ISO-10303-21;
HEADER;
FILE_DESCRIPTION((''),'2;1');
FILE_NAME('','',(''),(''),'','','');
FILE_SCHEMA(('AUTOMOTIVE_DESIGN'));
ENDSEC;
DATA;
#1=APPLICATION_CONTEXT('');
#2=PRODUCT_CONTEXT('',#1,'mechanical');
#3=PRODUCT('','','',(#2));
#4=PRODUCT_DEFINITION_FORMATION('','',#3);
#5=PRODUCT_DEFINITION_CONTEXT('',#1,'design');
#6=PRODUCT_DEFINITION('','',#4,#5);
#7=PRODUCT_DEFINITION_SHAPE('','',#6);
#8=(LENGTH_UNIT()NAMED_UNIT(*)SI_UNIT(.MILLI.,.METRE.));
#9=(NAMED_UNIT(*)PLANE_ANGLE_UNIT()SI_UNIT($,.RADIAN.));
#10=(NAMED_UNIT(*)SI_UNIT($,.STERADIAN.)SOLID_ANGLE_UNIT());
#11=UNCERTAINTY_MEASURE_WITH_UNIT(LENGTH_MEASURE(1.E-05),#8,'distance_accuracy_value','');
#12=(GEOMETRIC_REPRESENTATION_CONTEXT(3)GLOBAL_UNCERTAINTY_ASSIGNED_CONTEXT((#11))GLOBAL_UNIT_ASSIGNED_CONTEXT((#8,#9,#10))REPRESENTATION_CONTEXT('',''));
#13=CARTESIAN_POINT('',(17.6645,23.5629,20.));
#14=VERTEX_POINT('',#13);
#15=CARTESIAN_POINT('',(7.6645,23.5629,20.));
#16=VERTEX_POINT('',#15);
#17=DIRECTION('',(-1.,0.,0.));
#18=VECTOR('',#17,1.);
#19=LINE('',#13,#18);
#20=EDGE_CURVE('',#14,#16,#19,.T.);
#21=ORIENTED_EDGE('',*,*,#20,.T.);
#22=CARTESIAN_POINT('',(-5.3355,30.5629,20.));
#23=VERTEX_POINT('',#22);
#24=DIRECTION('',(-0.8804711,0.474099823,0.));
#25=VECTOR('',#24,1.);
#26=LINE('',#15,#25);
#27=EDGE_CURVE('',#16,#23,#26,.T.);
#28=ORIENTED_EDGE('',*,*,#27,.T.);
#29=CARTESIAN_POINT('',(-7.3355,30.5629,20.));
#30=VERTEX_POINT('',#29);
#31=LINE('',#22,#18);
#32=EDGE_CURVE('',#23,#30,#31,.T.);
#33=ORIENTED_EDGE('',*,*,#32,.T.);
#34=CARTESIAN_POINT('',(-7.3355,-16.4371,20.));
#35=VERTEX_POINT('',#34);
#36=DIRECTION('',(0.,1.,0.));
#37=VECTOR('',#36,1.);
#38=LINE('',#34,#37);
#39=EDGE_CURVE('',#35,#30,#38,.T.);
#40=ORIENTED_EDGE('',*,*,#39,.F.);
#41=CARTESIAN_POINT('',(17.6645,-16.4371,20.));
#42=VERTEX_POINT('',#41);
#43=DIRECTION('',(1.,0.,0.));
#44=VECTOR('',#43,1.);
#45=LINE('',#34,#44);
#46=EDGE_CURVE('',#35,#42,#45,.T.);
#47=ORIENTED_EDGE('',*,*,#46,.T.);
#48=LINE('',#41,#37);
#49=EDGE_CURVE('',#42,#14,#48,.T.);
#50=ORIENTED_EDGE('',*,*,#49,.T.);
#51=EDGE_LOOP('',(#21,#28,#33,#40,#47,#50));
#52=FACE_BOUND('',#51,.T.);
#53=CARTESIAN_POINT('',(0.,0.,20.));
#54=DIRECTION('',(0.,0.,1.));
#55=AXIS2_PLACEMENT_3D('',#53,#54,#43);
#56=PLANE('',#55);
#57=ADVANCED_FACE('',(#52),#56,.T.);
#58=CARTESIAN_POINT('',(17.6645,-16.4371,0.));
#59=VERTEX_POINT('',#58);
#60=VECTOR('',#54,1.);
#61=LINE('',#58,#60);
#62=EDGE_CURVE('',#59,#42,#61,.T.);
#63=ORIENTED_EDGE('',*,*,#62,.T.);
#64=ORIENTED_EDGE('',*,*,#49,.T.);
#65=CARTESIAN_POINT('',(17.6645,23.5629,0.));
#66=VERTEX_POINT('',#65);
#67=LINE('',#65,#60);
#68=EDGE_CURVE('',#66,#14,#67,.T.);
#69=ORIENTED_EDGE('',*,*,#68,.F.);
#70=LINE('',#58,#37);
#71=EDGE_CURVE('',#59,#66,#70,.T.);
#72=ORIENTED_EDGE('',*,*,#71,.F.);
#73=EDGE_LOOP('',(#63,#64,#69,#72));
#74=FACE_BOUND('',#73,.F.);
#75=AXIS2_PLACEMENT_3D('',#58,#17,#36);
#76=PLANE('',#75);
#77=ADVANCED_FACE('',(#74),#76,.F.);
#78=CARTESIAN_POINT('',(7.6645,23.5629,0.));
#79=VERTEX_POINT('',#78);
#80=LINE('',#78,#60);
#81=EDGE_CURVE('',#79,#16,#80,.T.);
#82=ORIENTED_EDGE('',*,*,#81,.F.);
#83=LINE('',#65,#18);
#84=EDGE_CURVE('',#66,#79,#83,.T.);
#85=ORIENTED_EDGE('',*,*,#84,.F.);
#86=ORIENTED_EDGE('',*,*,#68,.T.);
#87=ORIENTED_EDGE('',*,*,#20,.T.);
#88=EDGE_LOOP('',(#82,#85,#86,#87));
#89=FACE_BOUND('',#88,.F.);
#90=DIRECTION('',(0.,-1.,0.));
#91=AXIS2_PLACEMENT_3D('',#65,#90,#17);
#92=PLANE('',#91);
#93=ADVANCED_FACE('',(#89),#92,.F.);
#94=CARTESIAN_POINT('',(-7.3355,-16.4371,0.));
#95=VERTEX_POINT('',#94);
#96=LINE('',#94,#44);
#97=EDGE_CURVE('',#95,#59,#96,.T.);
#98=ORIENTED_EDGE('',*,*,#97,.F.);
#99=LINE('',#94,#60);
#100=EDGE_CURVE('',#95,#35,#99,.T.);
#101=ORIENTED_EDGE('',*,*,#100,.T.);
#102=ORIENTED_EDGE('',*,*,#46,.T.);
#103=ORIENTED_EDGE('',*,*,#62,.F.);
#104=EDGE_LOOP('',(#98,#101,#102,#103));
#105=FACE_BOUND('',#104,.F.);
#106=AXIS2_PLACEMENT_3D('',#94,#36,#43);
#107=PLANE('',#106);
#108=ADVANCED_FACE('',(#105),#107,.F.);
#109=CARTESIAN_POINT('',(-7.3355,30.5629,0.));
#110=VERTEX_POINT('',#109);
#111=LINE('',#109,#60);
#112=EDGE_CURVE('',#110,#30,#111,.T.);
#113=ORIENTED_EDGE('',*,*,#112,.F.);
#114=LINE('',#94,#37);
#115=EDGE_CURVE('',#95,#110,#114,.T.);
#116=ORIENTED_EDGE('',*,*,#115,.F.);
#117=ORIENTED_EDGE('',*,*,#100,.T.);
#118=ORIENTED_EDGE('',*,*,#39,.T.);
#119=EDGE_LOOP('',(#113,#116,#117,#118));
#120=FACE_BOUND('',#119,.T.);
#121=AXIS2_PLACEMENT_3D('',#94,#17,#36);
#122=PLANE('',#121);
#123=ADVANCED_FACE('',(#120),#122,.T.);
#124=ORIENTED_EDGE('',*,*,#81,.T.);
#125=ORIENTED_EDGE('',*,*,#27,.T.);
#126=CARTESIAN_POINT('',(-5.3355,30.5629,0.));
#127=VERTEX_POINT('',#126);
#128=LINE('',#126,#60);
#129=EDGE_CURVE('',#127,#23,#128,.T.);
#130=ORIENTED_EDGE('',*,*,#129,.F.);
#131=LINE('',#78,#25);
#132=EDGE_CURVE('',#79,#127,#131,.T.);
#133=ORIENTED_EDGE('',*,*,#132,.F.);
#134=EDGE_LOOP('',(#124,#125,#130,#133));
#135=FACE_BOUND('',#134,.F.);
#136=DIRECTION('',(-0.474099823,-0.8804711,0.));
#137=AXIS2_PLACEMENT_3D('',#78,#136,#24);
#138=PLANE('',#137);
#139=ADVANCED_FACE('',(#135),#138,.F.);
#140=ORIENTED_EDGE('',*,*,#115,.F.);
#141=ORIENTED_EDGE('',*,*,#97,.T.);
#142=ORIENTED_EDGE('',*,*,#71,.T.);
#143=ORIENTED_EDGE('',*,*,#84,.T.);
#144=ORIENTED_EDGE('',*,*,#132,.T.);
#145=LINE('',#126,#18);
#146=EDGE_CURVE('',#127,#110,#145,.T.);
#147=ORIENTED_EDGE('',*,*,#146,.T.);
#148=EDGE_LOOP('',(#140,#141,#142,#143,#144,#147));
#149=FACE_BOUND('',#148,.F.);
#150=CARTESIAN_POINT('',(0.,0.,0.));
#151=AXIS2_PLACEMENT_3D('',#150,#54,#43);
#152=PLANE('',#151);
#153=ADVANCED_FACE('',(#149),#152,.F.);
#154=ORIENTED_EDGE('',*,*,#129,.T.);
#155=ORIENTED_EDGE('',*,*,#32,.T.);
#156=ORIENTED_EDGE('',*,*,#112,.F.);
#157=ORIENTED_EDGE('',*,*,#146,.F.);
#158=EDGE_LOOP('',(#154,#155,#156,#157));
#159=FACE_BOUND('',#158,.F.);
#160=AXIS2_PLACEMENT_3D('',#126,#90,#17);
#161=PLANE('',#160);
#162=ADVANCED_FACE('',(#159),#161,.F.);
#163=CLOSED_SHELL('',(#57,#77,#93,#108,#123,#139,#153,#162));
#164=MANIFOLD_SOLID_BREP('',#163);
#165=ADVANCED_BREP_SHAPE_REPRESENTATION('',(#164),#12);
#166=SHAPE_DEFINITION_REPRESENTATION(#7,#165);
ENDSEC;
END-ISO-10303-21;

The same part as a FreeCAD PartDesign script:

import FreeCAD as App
import Part
import Sketcher

doc = App.newDocument("Part")
body = doc.addObject("PartDesign::Body", "Body")

# Sketch on XY plane
sketch1 = body.newObject("Sketcher::SketchObject", "Sketch")
sketch1.AttachmentSupport = (doc.getObject("XY_Plane"), [""])
sketch1.MapMode = "FlatFace"
sketch1.addGeometry([
    Part.LineSegment(App.Vector(-7.3, 30.6, 0), App.Vector(-7.3, -16.4, 0)),  # 0
    Part.LineSegment(App.Vector(-7.3, -16.4, 0), App.Vector(17.7, -16.4, 0)),  # 1
    Part.LineSegment(App.Vector(17.7, -16.4, 0), App.Vector(17.7, 23.6, 0)),  # 2
    Part.LineSegment(App.Vector(17.7, 23.6, 0), App.Vector(7.7, 23.6, 0)),  # 3
    Part.LineSegment(App.Vector(7.7, 23.6, 0), App.Vector(-5.3, 30.6, 0)),  # 4
    Part.LineSegment(App.Vector(-5.3, 30.6, 0), App.Vector(-7.3, 30.6, 0)),  # 5
], False)
sketch1.addConstraint([
    Sketcher.Constraint("Coincident", 0, 2, 1, 1),
    Sketcher.Constraint("Coincident", 1, 2, 2, 1),
    Sketcher.Constraint("Coincident", 2, 2, 3, 1),
    Sketcher.Constraint("Coincident", 3, 2, 4, 1),
    Sketcher.Constraint("Coincident", 4, 2, 5, 1),
    Sketcher.Constraint("Coincident", 5, 2, 0, 1),
    Sketcher.Constraint("Vertical", 0),
    Sketcher.Constraint("Horizontal", 1),
    Sketcher.Constraint("Vertical", 2),
    Sketcher.Constraint("Horizontal", 3),
    Sketcher.Constraint("Horizontal", 5),
    Sketcher.Constraint("DistanceX", 1, 1, 1, 2, 25.0),
    Sketcher.Constraint("DistanceX", 3, 2, 3, 1, 10.0),
    Sketcher.Constraint("DistanceX", 5, 2, 5, 1, 2.0),
    Sketcher.Constraint("DistanceY", 0, 2, 0, 1, 47.0),
    Sketcher.Constraint("DistanceY", 2, 1, 2, 2, 40.0),
    Sketcher.Constraint("DistanceY", 0, 2, -1, 1, 16.437),
    Sketcher.Constraint("DistanceX", 0, 2, -1, 1, 7.3355),
])
pad1 = body.newObject("PartDesign::Pad", "Pad")
pad1.Profile = sketch1
pad1.Length = 20

doc.recompute()
